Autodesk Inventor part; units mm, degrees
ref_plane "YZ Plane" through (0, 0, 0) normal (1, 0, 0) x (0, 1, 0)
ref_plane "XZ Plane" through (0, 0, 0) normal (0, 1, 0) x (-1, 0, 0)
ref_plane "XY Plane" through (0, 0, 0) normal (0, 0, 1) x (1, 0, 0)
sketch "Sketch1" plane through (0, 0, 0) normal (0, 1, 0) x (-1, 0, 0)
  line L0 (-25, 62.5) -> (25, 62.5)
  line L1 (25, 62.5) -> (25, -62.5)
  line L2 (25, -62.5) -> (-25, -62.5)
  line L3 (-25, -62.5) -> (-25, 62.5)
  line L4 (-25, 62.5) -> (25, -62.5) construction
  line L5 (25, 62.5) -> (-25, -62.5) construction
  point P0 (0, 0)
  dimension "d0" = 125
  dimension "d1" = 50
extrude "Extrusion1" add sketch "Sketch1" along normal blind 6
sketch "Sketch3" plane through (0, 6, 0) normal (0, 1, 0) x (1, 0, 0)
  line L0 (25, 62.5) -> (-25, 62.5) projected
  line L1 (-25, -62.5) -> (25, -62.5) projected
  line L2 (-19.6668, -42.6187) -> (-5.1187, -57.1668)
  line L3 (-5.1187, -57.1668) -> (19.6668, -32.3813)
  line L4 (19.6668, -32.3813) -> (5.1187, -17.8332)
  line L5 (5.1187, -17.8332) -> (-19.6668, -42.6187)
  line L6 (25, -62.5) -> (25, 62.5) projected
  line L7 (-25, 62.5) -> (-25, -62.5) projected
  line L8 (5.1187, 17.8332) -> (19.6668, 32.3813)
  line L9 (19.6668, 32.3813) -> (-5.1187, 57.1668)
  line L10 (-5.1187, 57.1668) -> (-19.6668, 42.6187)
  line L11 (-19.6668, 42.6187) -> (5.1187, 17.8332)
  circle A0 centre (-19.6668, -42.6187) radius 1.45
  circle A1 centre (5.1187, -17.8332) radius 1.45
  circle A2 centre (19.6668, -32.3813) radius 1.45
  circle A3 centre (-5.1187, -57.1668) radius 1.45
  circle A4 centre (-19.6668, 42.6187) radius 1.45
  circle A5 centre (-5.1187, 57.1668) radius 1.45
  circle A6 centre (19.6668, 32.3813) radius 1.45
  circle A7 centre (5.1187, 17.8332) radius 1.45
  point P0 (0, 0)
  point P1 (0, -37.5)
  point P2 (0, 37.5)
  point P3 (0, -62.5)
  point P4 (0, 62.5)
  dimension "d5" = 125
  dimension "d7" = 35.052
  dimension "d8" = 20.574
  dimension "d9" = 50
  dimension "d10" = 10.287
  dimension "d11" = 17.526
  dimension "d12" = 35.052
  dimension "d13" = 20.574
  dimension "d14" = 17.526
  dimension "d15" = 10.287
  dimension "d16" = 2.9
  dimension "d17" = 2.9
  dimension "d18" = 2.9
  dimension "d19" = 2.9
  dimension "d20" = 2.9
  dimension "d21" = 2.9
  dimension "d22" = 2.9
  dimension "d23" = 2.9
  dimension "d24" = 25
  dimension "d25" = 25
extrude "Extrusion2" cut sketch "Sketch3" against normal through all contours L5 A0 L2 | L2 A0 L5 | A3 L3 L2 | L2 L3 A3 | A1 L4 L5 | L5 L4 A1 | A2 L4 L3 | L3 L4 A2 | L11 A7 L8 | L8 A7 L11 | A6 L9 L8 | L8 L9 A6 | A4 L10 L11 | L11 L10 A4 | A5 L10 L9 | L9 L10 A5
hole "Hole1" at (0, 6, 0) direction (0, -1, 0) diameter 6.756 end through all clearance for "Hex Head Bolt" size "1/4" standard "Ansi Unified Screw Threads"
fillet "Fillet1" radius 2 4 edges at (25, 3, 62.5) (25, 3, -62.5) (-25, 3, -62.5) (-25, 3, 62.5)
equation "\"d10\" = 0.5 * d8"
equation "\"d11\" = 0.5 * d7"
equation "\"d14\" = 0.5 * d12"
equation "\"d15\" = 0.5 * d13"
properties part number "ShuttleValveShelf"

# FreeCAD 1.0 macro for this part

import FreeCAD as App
import Part
import Sketcher
from FreeCAD import Vector
Q = App.Units.Quantity


def edges_at(feature, points):
    """Names of the edges that pass closest to the given points."""
    edges = feature.Shape.Edges
    near = lambda p: min(range(len(edges)), key=lambda i: edges[i].distToShape(Part.Vertex(*p))[0])
    return sorted({f"Edge{near(p) + 1}" for p in points})


def add_polygon(sketch, points):
    """Adds a closed chain of lines whose ends are joined by coincident constraints."""
    first, n = sketch.GeometryCount, len(points)
    for a, b in zip(points, points[1:] + points[:1]):
        sketch.addGeometry(Part.LineSegment(App.Vector(*a, 0), App.Vector(*b, 0)), False)
    for i in range(n):
        sketch.addConstraint(Sketcher.Constraint("Coincident", first + i, 2, first + (i + 1) % n, 1))

doc = App.newDocument("Part")
body = doc.addObject("PartDesign::Body", "Body")

# Sketch on XZ plane
sketch1 = body.newObject("Sketcher::SketchObject", "Sketch")
sketch1.AttachmentSupport = (doc.getObject("XZ_Plane"), [""])
sketch1.MapMode = "FlatFace"
add_polygon(sketch1, [(-25, 62.5), (25, 62.5), (25, -62.5), (-25, -62.5)])  # lines 0-3
sketch1.addConstraint(Sketcher.Constraint("Horizontal", 0))
sketch1.addConstraint(Sketcher.Constraint("Vertical", 1))
sketch1.addConstraint(Sketcher.Constraint("Horizontal", 2))
sketch1.addConstraint(Sketcher.Constraint("Vertical", 3))
sketch1.addConstraint(Sketcher.Constraint("Symmetric", 0, 2, 2, 2, -1, 1))
sketch1.addConstraint(Sketcher.Constraint("DistanceX", 0, 1, 0, 2, Q("50 mm")))
sketch1.addConstraint(Sketcher.Constraint("DistanceY", 1, 2, 1, 1, Q("125 mm")))
pad1 = body.newObject("PartDesign::Pad", "Pad")
pad1.Profile = sketch1
pad1.Length = 6
pad1.Reversed = True

# Sketch on XZ plane
sketch2 = body.newObject("Sketcher::SketchObject", "Sketch001")
sketch2.AttachmentSupport = (doc.getObject("XZ_Plane"), [""])
sketch2.MapMode = "FlatFace"
sketch2.AttachmentOffset = App.Placement(Vector(0, 0, -6), App.Rotation())
sketch2.addGeometry(Part.Circle(Vector(-19.6668, 42.6187, 0), Vector(0, 0, 1), 1.45), False)
sketch2.addGeometry(Part.Circle(Vector(-5.1187, 57.1668, 0), Vector(0, 0, 1), 1.45), False)
sketch2.addGeometry(Part.Circle(Vector(5.1187, 17.8332, 0), Vector(0, 0, 1), 1.45), False)
sketch2.addGeometry(Part.Circle(Vector(19.6668, 32.3813, 0), Vector(0, 0, 1), 1.45), False)
sketch2.addGeometry(Part.Circle(Vector(5.1187, -17.8332, 0), Vector(0, 0, 1), 1.45), False)
sketch2.addGeometry(Part.Circle(Vector(19.6668, -32.3813, 0), Vector(0, 0, 1), 1.45), False)
sketch2.addGeometry(Part.Circle(Vector(-19.6668, -42.6187, 0), Vector(0, 0, 1), 1.45), False)
sketch2.addGeometry(Part.Circle(Vector(-5.1187, -57.1668, 0), Vector(0, 0, 1), 1.45), False)
sketch2.addConstraint(Sketcher.Constraint("Equal", 0, 1))
sketch2.addConstraint(Sketcher.Constraint("Equal", 1, 2))
sketch2.addConstraint(Sketcher.Constraint("Equal", 2, 3))
sketch2.addConstraint(Sketcher.Constraint("Equal", 3, 4))
sketch2.addConstraint(Sketcher.Constraint("Equal", 4, 5))
sketch2.addConstraint(Sketcher.Constraint("Equal", 5, 6))
sketch2.addConstraint(Sketcher.Constraint("Equal", 6, 7))
sketch2.addConstraint(Sketcher.Constraint("Symmetric", 2, 3, 4, 3, -1))
sketch2.addConstraint(Sketcher.Constraint("Symmetric", 3, 3, 5, 3, -1))
sketch2.addConstraint(Sketcher.Constraint("Symmetric", 0, 3, 6, 3, -1))
sketch2.addConstraint(Sketcher.Constraint("Symmetric", 1, 3, 7, 3, -1))
sketch2.addConstraint(Sketcher.Constraint("Diameter", 0, Q("2.9 mm")))
sketch2.addConstraint(Sketcher.Constraint("DistanceY", 4, 3, 1, 3, Q("75 mm")))
sketch2.addConstraint(Sketcher.Constraint("DistanceY", 5, 3, 0, 3, Q("75 mm")))
sketch2.addConstraint(Sketcher.Constraint("DistanceX", 0, 3, 1, 3, Q("14.548 mm")))
sketch2.addConstraint(Sketcher.Constraint("DistanceY", 0, 3, 1, 3, Q("14.548 mm")))
sketch2.addConstraint(Sketcher.Constraint("DistanceX", 2, 3, 3, 3, Q("14.548 mm")))
sketch2.addConstraint(Sketcher.Constraint("DistanceX", 0, 3, -1, 1, Q("19.6668 mm")))
sketch2.addConstraint(Sketcher.Constraint("DistanceY", -1, 1, 0, 3, Q("42.6187 mm")))
sketch2.addConstraint(Sketcher.Constraint("DistanceX", -1, 1, 2, 3, Q("5.1187 mm")))
pocket1 = body.newObject("PartDesign::Pocket", "Pocket")
pocket1.Profile = sketch2
pocket1.Type = "ThroughAll"
pocket1.Reversed = True

# Sketch on XZ plane
sketch3 = body.newObject("Sketcher::SketchObject", "Sketch002")
sketch3.AttachmentSupport = (doc.getObject("XZ_Plane"), [""])
sketch3.MapMode = "FlatFace"
sketch3.AttachmentOffset = App.Placement(Vector(0, 0, -6), App.Rotation())
sketch3.addGeometry(Part.Circle(Vector(0, 0, 0), Vector(0, 0, 1), 3.378), False)
sketch3.addConstraint(Sketcher.Constraint("Coincident", 0, 3, -1, 1))
sketch3.addConstraint(Sketcher.Constraint("Diameter", 0, Q("6.756 mm")))
doc.recompute()
hole = body.newObject("PartDesign::Hole", "Hole")
hole.Profile = sketch3
hole.ThreadType = "None"
hole.Diameter = 6.756
hole.DepthType = "ThroughAll"
hole.Reversed = True
doc.recompute()

fillet = body.newObject("PartDesign::Fillet", "Fillet")
fillet.Base = (hole, edges_at(hole, [
    (25, 3, 62.5),
    (25, 3, -62.5),
    (-25, 3, -62.5),
    (-25, 3, 62.5),
]))
fillet.Radius = 2

doc.recompute()
